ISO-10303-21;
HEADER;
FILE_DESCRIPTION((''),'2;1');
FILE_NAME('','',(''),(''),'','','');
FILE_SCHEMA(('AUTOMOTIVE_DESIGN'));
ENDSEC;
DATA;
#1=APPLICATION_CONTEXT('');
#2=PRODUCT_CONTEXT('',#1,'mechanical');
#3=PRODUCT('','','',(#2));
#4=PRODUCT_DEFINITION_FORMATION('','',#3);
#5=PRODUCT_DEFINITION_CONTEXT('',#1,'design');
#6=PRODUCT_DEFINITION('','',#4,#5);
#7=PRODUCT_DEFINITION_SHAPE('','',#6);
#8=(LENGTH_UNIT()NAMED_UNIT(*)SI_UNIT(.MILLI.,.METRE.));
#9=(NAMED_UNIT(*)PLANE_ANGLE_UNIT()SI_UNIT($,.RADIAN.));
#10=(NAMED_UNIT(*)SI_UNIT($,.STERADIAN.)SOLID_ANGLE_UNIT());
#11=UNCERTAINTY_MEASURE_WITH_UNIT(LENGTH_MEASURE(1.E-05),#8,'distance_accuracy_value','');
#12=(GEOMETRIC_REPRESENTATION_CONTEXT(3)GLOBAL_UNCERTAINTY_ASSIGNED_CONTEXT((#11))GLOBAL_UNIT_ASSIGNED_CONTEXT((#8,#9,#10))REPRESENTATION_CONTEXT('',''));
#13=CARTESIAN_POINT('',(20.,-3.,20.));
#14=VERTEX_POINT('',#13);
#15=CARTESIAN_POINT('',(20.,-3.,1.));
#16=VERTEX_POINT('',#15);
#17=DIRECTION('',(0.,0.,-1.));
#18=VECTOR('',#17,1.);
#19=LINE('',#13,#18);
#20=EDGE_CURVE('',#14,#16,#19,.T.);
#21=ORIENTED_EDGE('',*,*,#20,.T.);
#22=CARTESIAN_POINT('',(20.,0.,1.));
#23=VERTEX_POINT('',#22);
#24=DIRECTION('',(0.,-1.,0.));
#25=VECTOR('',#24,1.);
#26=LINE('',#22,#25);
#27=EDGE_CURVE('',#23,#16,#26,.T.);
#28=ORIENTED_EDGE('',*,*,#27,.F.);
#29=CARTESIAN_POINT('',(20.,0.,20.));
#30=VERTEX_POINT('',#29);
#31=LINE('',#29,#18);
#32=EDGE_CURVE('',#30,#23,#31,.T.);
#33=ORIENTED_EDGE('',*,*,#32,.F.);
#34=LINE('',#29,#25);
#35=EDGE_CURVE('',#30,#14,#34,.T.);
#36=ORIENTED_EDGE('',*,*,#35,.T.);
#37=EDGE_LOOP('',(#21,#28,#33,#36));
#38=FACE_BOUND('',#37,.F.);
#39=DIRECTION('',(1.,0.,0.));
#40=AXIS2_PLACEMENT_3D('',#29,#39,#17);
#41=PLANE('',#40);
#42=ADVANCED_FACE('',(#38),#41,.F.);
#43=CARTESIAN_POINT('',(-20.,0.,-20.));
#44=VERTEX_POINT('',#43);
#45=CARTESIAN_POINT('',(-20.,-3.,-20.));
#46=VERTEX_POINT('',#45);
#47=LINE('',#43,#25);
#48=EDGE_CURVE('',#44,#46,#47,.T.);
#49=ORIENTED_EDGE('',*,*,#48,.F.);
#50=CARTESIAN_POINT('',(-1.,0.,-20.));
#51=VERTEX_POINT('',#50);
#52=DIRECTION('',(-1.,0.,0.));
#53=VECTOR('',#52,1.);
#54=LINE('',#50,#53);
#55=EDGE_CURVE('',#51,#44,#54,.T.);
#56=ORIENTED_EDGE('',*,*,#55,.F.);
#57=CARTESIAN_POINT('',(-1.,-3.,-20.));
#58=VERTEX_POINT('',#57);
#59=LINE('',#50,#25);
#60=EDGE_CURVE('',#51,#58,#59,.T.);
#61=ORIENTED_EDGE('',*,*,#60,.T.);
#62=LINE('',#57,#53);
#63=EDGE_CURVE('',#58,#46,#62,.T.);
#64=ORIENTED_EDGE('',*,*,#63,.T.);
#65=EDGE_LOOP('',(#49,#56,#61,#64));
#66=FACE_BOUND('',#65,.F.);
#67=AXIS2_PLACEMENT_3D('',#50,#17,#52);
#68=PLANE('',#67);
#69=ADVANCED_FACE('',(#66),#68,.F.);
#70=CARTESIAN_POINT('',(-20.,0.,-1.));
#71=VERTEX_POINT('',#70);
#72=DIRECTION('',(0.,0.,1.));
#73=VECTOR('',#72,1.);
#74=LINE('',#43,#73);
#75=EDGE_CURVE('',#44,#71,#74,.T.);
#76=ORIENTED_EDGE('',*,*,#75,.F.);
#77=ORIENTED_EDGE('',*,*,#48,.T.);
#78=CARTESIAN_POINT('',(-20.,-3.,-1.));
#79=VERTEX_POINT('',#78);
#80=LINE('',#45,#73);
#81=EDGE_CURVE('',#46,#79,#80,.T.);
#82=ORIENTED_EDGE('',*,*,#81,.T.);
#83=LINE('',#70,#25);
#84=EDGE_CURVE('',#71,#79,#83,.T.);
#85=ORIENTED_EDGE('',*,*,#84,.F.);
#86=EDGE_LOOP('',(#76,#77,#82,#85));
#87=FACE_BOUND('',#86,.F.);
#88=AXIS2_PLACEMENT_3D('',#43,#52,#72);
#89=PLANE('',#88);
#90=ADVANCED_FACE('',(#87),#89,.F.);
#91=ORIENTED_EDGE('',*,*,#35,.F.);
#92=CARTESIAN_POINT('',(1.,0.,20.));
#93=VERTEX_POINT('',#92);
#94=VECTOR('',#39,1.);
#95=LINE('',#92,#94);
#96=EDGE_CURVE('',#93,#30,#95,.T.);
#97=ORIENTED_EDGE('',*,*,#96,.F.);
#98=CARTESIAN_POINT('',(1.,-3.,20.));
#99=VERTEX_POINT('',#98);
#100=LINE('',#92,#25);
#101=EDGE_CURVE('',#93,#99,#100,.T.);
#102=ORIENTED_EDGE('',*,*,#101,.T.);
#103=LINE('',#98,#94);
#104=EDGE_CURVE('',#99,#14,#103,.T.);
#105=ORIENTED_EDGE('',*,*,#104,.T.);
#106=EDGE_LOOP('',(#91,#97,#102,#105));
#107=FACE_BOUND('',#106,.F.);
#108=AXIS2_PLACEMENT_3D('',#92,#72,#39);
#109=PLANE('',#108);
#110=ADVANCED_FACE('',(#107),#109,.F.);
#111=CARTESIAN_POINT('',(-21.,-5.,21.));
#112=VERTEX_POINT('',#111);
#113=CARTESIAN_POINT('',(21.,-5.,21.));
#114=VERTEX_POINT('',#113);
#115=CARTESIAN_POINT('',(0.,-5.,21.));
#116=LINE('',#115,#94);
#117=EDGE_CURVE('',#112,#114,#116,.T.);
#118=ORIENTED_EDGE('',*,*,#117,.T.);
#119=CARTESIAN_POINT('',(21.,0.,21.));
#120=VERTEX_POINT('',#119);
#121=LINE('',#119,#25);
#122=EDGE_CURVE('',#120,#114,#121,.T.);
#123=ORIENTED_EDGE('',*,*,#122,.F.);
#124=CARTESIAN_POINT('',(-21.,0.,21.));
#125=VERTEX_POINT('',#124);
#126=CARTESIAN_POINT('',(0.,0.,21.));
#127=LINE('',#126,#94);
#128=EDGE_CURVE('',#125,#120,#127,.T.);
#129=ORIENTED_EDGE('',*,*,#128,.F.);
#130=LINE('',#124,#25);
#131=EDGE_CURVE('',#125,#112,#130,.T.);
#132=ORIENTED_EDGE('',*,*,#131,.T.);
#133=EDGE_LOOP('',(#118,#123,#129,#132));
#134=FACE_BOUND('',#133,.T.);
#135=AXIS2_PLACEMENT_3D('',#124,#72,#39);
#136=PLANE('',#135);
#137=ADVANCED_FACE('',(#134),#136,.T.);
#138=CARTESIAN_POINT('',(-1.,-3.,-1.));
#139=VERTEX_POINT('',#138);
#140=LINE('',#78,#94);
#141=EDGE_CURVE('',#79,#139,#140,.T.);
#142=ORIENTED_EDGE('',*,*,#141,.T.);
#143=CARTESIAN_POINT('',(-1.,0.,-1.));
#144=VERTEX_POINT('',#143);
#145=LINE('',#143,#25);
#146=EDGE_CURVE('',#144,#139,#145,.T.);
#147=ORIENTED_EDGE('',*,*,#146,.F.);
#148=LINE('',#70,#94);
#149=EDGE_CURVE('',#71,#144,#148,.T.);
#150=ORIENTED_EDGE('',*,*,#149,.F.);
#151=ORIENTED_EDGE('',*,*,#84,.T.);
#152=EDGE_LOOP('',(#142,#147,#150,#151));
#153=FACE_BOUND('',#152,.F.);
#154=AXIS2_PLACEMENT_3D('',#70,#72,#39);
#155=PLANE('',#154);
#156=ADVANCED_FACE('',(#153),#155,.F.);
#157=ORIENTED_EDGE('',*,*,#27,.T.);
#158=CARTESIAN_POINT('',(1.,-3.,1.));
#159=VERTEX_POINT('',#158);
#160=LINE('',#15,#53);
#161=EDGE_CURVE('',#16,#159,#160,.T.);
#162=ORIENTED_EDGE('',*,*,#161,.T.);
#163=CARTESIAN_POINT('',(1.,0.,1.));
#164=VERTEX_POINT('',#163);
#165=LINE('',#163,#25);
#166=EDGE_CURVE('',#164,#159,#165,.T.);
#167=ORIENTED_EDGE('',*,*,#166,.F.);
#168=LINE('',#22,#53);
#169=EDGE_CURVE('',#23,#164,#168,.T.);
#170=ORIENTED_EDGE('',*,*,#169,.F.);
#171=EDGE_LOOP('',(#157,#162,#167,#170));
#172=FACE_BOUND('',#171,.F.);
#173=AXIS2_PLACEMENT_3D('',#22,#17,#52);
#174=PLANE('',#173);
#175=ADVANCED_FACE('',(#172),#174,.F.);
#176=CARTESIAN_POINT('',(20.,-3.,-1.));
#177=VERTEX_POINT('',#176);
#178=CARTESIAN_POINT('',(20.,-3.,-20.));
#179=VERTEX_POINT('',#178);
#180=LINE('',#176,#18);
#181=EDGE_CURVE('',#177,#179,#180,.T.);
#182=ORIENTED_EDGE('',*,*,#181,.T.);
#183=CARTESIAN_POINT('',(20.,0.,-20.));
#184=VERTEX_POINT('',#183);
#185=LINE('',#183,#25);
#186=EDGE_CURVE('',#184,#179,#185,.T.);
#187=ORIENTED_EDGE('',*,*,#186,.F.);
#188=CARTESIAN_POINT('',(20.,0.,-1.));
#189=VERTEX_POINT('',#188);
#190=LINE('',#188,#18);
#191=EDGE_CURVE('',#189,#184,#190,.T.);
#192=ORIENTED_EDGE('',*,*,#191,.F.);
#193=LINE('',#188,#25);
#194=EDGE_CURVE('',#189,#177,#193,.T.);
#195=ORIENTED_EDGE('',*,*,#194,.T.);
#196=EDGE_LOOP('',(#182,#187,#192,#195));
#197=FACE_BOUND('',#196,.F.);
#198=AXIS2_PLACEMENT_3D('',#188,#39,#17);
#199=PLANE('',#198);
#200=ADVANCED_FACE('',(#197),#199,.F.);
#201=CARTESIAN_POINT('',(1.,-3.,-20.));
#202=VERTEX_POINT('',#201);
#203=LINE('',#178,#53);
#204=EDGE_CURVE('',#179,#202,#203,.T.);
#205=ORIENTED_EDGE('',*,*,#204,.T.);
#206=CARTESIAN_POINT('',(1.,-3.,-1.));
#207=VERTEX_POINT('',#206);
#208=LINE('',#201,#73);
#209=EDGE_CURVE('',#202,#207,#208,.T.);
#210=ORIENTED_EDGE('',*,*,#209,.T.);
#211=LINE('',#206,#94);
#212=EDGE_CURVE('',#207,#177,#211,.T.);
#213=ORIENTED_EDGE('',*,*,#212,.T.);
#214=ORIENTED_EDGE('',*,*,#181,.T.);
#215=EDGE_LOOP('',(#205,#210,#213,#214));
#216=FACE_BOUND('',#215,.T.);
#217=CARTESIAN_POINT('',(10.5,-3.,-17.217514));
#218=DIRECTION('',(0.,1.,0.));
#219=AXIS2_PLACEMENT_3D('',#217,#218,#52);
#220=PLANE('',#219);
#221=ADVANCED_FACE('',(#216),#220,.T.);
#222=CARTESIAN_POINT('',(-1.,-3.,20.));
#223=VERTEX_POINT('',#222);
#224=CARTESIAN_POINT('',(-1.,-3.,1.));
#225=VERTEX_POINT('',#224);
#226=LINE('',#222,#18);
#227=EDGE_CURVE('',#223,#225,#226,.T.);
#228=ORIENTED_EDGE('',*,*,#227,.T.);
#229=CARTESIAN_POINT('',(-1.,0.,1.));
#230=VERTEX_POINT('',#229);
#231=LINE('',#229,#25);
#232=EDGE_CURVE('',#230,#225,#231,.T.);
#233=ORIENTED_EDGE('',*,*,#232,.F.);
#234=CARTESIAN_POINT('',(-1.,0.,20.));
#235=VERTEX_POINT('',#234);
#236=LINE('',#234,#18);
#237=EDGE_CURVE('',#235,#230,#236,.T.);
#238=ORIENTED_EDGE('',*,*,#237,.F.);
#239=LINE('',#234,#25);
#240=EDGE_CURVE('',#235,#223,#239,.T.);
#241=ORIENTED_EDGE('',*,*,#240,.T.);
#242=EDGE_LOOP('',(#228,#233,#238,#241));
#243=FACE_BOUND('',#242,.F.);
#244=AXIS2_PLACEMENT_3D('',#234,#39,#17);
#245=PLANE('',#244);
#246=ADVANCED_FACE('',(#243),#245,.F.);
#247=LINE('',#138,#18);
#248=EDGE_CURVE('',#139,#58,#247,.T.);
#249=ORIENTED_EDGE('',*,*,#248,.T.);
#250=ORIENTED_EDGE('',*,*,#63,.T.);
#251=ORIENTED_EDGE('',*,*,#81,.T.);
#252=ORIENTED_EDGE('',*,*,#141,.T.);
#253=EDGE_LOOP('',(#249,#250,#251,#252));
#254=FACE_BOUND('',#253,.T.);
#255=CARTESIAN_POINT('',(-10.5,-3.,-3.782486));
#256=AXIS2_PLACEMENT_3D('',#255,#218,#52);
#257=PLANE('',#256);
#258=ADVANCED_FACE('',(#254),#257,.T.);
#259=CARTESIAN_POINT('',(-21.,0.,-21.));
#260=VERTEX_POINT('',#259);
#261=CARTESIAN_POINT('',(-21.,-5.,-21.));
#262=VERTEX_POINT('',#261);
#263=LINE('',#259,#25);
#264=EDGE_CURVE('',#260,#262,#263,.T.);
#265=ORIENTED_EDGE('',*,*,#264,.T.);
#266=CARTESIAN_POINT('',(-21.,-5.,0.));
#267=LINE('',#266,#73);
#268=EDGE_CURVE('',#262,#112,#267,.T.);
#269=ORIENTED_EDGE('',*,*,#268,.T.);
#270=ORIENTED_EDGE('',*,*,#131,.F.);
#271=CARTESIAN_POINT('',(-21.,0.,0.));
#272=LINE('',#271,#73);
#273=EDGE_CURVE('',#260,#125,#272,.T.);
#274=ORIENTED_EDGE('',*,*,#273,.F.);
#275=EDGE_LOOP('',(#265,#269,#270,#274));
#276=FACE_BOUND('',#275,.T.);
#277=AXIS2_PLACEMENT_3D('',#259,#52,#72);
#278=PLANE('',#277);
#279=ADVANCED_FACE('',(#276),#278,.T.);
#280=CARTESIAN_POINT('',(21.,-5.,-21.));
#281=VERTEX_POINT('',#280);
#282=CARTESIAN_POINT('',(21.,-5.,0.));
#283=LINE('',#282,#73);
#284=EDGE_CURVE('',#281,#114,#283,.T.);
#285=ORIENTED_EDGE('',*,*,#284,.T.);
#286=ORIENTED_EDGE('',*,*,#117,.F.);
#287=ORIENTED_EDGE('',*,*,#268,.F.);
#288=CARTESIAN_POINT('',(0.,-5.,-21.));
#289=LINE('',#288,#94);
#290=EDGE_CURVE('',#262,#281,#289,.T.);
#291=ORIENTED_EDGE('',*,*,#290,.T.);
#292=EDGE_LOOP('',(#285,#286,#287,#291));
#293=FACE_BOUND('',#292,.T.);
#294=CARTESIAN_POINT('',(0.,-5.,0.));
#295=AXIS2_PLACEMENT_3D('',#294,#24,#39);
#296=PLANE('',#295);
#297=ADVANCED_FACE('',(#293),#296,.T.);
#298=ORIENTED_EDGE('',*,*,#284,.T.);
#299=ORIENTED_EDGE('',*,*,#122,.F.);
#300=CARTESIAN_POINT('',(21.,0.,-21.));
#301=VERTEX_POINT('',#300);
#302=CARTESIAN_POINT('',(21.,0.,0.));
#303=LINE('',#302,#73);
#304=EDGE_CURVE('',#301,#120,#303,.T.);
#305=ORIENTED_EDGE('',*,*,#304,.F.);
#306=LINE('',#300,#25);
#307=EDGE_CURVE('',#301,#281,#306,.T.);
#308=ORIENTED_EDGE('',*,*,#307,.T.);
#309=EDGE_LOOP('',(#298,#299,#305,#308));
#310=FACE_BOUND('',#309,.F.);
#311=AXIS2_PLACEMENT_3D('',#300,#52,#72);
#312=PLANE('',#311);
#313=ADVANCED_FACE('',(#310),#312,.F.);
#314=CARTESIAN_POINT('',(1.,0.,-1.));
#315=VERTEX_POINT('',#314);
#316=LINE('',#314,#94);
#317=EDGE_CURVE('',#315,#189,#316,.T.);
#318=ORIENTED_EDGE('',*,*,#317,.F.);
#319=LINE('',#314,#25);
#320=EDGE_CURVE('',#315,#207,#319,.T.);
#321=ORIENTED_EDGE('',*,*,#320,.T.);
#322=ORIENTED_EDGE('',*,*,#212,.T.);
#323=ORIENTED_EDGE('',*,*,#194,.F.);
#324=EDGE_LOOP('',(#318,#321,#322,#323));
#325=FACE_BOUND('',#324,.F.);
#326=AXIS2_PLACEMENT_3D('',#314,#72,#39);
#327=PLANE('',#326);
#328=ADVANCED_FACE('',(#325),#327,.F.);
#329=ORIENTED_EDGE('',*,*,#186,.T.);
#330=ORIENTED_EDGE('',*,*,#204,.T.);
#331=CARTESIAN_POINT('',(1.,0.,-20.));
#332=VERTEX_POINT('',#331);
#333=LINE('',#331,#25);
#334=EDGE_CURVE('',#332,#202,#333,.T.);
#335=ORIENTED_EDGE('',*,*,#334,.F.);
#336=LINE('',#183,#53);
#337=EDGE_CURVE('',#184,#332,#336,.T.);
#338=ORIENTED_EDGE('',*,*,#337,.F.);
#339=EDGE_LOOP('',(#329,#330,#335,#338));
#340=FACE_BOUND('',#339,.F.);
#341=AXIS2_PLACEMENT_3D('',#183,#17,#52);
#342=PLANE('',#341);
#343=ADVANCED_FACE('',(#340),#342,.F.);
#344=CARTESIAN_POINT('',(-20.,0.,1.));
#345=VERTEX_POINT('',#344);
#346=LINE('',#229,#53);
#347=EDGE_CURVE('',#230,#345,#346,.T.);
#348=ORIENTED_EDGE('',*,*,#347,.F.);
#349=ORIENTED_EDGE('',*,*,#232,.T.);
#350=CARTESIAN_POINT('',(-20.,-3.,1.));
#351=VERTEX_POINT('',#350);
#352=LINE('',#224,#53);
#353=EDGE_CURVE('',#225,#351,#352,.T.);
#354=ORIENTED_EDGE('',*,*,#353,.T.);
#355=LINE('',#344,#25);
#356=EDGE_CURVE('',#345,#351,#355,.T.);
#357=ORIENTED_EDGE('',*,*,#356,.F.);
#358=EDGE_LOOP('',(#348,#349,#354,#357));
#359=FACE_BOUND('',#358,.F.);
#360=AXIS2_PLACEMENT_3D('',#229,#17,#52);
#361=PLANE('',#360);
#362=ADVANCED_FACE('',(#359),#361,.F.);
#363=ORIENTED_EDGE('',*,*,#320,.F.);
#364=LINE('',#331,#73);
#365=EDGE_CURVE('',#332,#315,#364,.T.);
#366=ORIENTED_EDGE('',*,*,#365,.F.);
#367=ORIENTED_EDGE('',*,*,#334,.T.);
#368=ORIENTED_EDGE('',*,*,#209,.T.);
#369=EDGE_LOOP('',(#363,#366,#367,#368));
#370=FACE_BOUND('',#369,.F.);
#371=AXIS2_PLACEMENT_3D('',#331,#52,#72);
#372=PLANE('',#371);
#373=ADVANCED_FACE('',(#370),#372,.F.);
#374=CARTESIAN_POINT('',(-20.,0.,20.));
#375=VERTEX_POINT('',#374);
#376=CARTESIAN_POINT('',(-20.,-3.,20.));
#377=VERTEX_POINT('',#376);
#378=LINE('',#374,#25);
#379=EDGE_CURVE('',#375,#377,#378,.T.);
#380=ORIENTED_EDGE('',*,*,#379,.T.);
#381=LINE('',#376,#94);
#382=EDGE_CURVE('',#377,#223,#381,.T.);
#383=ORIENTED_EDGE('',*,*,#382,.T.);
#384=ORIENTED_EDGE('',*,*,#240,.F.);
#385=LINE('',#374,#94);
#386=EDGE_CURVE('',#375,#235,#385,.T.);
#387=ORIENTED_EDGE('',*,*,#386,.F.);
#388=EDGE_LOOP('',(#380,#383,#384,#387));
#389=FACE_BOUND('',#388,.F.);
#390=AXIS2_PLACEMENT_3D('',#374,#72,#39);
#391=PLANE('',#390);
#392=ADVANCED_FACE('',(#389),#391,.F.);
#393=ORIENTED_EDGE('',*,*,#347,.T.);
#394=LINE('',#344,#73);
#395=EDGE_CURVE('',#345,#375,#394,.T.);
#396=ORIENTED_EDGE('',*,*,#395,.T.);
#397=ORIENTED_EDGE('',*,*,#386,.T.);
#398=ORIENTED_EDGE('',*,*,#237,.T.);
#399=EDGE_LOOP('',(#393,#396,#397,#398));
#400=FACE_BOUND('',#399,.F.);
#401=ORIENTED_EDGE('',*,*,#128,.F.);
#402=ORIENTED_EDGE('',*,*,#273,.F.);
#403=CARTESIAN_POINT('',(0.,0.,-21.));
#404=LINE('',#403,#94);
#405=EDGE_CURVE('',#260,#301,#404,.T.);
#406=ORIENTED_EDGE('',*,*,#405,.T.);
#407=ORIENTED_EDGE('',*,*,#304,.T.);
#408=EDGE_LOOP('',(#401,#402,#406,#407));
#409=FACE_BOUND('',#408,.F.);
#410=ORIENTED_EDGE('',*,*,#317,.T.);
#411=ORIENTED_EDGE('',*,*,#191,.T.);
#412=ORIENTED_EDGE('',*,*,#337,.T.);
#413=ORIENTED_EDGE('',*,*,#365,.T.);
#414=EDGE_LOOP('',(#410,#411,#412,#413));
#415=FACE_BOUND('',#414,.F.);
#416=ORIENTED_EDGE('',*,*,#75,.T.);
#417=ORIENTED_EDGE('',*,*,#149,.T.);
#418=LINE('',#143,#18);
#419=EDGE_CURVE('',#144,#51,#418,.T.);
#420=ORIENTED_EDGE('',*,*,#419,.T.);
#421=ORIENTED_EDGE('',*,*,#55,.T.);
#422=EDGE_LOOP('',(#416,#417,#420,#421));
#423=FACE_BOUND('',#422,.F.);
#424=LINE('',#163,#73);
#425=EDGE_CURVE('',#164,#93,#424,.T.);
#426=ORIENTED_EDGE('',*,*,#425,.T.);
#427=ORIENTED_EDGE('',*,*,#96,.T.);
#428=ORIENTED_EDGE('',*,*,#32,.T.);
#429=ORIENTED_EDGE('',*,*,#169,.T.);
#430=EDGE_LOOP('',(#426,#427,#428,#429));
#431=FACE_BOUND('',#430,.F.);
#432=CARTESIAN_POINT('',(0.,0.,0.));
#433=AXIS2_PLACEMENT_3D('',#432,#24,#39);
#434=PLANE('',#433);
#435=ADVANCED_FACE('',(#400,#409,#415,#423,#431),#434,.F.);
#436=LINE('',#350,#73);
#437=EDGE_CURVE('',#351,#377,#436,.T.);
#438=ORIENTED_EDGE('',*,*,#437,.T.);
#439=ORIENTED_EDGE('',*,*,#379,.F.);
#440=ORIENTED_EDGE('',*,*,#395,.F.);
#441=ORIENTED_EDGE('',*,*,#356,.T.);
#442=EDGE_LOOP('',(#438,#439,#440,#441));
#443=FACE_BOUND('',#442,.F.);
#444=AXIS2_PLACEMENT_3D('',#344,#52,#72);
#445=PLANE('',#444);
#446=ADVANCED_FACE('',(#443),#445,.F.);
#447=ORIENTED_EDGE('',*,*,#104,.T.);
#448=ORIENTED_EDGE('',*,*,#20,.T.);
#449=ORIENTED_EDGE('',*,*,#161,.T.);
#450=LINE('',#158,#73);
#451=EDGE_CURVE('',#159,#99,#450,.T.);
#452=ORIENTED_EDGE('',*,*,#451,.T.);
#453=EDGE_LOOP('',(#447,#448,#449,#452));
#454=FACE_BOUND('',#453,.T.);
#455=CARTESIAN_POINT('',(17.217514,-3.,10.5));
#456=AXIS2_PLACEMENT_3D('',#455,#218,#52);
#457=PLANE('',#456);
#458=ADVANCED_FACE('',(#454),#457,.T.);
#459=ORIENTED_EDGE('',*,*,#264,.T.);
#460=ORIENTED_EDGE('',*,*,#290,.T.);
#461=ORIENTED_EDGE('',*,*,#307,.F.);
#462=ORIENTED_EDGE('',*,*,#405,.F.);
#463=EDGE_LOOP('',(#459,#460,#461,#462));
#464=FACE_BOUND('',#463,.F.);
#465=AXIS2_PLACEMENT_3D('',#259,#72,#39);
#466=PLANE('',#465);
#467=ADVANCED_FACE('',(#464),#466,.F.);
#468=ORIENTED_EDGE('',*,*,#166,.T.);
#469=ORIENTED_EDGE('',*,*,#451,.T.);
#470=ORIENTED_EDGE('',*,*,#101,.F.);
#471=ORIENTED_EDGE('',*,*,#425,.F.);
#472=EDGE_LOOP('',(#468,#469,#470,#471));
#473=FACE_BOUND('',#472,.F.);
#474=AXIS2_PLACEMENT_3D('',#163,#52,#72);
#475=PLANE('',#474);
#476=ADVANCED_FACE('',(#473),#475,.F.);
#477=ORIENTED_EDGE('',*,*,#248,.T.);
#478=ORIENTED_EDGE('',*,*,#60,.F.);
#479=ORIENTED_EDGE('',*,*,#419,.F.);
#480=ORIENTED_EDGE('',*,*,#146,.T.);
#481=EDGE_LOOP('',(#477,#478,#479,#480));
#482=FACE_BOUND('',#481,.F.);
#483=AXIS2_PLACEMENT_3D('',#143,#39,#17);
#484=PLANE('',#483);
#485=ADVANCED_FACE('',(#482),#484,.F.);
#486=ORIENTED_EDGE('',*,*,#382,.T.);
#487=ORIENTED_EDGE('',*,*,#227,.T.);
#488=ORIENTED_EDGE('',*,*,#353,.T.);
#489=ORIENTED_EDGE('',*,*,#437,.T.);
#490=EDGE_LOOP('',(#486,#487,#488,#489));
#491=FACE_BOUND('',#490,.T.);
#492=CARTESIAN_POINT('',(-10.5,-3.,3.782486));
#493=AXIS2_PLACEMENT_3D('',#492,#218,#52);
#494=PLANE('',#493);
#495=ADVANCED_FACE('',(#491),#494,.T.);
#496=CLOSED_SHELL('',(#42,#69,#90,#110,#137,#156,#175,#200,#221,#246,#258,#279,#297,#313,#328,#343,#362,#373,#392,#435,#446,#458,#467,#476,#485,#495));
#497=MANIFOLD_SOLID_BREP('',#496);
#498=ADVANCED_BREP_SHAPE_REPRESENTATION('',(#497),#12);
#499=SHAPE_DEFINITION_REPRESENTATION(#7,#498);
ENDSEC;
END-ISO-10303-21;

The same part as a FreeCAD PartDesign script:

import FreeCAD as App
import Part
import Sketcher


def add_polygon(sketch, points):
    """Adds a closed chain of lines whose ends are joined by coincident constraints."""
    first, n = sketch.GeometryCount, len(points)
    for a, b in zip(points, points[1:] + points[:1]):
        sketch.addGeometry(Part.LineSegment(App.Vector(*a, 0), App.Vector(*b, 0)), False)
    for i in range(n):
        sketch.addConstraint(Sketcher.Constraint("Coincident", first + i, 2, first + (i + 1) % n, 1))

doc = App.newDocument("Part")
body = doc.addObject("PartDesign::Body", "Body")

sketch1 = body.newObject("Sketcher::SketchObject", "Sketch")
sketch1.AttachmentSupport = (doc.getObject("XZ_Plane"), [""])
sketch1.MapMode = "FlatFace"
add_polygon(sketch1, [(-21, 21), (-21, -21), (21, -21), (21, 21)])
sketch1.addConstraint([
    Sketcher.Constraint("Vertical", 0),
    Sketcher.Constraint("Horizontal", 1),
    Sketcher.Constraint("Vertical", 2),
    Sketcher.Constraint("Horizontal", 3),
    Sketcher.Constraint("Symmetric", 0, 2, 2, 2, -1, 1),
    Sketcher.Constraint("Equal", 3, 0),
    Sketcher.Constraint("DistanceX", 1, 1, 1, 2, 42.0),
])
pad1 = body.newObject("PartDesign::Pad", "Pad")
pad1.Profile = sketch1
pad1.Length = 5

sketch2 = body.newObject("Sketcher::SketchObject", "Sketch001")
sketch2.AttachmentSupport = (doc.getObject("XZ_Plane"), [""])
sketch2.MapMode = "FlatFace"
add_polygon(sketch2, [(20, 20), (20, 1), (1, 1), (1, 20)])
add_polygon(sketch2, [(-1, 1), (-20, 1), (-20, 20), (-1, 20)])
add_polygon(sketch2, [(-20, -1), (-1, -1), (-1, -20), (-20, -20)])
add_polygon(sketch2, [(20, -20), (1, -20), (1, -1), (20, -1)])
sketch2.addConstraint([
    Sketcher.Constraint("Vertical", 0),
    Sketcher.Constraint("Horizontal", 1),
    Sketcher.Constraint("Vertical", 2),
    Sketcher.Constraint("Horizontal", 3),
    Sketcher.Constraint("Horizontal", 4),
    Sketcher.Constraint("Vertical", 5),
    Sketcher.Constraint("Horizontal", 6),
    Sketcher.Constraint("Vertical", 7),
    Sketcher.Constraint("Horizontal", 8),
    Sketcher.Constraint("Vertical", 9),
    Sketcher.Constraint("Horizontal", 10),
    Sketcher.Constraint("Vertical", 11),
    Sketcher.Constraint("Horizontal", 12),
    Sketcher.Constraint("Vertical", 13),
    Sketcher.Constraint("Horizontal", 14),
    Sketcher.Constraint("Vertical", 15),
    Sketcher.Constraint("Symmetric", 1, 2, 8, 2, -1, 1),
    Sketcher.Constraint("Symmetric", 3, 2, 10, 2, -1, 1),
    Sketcher.Constraint("Symmetric", 6, 2, 12, 2, -1, 1),
    Sketcher.Constraint("Symmetric", 4, 2, 14, 2, -1, 1),
    Sketcher.Constraint("Symmetric", 0, 2, 4, 2, -2),
    Sketcher.Constraint("Symmetric", 2, 2, 6, 2, -2),
    Sketcher.Constraint("Equal", 14, 0),
    Sketcher.Constraint("DistanceX", 1, 2, 1, 1, 19.0),
    Sketcher.Constraint("DistanceX", -1, 1, 0, 2, 20.0),
    Sketcher.Constraint("DistanceY", -1, 1, 0, 2, 1.0),
])
pocket1 = body.newObject("PartDesign::Pocket", "Pocket")
pocket1.Profile = sketch2
pocket1.Length = 3
pocket1.Reversed = True

doc.recompute()
